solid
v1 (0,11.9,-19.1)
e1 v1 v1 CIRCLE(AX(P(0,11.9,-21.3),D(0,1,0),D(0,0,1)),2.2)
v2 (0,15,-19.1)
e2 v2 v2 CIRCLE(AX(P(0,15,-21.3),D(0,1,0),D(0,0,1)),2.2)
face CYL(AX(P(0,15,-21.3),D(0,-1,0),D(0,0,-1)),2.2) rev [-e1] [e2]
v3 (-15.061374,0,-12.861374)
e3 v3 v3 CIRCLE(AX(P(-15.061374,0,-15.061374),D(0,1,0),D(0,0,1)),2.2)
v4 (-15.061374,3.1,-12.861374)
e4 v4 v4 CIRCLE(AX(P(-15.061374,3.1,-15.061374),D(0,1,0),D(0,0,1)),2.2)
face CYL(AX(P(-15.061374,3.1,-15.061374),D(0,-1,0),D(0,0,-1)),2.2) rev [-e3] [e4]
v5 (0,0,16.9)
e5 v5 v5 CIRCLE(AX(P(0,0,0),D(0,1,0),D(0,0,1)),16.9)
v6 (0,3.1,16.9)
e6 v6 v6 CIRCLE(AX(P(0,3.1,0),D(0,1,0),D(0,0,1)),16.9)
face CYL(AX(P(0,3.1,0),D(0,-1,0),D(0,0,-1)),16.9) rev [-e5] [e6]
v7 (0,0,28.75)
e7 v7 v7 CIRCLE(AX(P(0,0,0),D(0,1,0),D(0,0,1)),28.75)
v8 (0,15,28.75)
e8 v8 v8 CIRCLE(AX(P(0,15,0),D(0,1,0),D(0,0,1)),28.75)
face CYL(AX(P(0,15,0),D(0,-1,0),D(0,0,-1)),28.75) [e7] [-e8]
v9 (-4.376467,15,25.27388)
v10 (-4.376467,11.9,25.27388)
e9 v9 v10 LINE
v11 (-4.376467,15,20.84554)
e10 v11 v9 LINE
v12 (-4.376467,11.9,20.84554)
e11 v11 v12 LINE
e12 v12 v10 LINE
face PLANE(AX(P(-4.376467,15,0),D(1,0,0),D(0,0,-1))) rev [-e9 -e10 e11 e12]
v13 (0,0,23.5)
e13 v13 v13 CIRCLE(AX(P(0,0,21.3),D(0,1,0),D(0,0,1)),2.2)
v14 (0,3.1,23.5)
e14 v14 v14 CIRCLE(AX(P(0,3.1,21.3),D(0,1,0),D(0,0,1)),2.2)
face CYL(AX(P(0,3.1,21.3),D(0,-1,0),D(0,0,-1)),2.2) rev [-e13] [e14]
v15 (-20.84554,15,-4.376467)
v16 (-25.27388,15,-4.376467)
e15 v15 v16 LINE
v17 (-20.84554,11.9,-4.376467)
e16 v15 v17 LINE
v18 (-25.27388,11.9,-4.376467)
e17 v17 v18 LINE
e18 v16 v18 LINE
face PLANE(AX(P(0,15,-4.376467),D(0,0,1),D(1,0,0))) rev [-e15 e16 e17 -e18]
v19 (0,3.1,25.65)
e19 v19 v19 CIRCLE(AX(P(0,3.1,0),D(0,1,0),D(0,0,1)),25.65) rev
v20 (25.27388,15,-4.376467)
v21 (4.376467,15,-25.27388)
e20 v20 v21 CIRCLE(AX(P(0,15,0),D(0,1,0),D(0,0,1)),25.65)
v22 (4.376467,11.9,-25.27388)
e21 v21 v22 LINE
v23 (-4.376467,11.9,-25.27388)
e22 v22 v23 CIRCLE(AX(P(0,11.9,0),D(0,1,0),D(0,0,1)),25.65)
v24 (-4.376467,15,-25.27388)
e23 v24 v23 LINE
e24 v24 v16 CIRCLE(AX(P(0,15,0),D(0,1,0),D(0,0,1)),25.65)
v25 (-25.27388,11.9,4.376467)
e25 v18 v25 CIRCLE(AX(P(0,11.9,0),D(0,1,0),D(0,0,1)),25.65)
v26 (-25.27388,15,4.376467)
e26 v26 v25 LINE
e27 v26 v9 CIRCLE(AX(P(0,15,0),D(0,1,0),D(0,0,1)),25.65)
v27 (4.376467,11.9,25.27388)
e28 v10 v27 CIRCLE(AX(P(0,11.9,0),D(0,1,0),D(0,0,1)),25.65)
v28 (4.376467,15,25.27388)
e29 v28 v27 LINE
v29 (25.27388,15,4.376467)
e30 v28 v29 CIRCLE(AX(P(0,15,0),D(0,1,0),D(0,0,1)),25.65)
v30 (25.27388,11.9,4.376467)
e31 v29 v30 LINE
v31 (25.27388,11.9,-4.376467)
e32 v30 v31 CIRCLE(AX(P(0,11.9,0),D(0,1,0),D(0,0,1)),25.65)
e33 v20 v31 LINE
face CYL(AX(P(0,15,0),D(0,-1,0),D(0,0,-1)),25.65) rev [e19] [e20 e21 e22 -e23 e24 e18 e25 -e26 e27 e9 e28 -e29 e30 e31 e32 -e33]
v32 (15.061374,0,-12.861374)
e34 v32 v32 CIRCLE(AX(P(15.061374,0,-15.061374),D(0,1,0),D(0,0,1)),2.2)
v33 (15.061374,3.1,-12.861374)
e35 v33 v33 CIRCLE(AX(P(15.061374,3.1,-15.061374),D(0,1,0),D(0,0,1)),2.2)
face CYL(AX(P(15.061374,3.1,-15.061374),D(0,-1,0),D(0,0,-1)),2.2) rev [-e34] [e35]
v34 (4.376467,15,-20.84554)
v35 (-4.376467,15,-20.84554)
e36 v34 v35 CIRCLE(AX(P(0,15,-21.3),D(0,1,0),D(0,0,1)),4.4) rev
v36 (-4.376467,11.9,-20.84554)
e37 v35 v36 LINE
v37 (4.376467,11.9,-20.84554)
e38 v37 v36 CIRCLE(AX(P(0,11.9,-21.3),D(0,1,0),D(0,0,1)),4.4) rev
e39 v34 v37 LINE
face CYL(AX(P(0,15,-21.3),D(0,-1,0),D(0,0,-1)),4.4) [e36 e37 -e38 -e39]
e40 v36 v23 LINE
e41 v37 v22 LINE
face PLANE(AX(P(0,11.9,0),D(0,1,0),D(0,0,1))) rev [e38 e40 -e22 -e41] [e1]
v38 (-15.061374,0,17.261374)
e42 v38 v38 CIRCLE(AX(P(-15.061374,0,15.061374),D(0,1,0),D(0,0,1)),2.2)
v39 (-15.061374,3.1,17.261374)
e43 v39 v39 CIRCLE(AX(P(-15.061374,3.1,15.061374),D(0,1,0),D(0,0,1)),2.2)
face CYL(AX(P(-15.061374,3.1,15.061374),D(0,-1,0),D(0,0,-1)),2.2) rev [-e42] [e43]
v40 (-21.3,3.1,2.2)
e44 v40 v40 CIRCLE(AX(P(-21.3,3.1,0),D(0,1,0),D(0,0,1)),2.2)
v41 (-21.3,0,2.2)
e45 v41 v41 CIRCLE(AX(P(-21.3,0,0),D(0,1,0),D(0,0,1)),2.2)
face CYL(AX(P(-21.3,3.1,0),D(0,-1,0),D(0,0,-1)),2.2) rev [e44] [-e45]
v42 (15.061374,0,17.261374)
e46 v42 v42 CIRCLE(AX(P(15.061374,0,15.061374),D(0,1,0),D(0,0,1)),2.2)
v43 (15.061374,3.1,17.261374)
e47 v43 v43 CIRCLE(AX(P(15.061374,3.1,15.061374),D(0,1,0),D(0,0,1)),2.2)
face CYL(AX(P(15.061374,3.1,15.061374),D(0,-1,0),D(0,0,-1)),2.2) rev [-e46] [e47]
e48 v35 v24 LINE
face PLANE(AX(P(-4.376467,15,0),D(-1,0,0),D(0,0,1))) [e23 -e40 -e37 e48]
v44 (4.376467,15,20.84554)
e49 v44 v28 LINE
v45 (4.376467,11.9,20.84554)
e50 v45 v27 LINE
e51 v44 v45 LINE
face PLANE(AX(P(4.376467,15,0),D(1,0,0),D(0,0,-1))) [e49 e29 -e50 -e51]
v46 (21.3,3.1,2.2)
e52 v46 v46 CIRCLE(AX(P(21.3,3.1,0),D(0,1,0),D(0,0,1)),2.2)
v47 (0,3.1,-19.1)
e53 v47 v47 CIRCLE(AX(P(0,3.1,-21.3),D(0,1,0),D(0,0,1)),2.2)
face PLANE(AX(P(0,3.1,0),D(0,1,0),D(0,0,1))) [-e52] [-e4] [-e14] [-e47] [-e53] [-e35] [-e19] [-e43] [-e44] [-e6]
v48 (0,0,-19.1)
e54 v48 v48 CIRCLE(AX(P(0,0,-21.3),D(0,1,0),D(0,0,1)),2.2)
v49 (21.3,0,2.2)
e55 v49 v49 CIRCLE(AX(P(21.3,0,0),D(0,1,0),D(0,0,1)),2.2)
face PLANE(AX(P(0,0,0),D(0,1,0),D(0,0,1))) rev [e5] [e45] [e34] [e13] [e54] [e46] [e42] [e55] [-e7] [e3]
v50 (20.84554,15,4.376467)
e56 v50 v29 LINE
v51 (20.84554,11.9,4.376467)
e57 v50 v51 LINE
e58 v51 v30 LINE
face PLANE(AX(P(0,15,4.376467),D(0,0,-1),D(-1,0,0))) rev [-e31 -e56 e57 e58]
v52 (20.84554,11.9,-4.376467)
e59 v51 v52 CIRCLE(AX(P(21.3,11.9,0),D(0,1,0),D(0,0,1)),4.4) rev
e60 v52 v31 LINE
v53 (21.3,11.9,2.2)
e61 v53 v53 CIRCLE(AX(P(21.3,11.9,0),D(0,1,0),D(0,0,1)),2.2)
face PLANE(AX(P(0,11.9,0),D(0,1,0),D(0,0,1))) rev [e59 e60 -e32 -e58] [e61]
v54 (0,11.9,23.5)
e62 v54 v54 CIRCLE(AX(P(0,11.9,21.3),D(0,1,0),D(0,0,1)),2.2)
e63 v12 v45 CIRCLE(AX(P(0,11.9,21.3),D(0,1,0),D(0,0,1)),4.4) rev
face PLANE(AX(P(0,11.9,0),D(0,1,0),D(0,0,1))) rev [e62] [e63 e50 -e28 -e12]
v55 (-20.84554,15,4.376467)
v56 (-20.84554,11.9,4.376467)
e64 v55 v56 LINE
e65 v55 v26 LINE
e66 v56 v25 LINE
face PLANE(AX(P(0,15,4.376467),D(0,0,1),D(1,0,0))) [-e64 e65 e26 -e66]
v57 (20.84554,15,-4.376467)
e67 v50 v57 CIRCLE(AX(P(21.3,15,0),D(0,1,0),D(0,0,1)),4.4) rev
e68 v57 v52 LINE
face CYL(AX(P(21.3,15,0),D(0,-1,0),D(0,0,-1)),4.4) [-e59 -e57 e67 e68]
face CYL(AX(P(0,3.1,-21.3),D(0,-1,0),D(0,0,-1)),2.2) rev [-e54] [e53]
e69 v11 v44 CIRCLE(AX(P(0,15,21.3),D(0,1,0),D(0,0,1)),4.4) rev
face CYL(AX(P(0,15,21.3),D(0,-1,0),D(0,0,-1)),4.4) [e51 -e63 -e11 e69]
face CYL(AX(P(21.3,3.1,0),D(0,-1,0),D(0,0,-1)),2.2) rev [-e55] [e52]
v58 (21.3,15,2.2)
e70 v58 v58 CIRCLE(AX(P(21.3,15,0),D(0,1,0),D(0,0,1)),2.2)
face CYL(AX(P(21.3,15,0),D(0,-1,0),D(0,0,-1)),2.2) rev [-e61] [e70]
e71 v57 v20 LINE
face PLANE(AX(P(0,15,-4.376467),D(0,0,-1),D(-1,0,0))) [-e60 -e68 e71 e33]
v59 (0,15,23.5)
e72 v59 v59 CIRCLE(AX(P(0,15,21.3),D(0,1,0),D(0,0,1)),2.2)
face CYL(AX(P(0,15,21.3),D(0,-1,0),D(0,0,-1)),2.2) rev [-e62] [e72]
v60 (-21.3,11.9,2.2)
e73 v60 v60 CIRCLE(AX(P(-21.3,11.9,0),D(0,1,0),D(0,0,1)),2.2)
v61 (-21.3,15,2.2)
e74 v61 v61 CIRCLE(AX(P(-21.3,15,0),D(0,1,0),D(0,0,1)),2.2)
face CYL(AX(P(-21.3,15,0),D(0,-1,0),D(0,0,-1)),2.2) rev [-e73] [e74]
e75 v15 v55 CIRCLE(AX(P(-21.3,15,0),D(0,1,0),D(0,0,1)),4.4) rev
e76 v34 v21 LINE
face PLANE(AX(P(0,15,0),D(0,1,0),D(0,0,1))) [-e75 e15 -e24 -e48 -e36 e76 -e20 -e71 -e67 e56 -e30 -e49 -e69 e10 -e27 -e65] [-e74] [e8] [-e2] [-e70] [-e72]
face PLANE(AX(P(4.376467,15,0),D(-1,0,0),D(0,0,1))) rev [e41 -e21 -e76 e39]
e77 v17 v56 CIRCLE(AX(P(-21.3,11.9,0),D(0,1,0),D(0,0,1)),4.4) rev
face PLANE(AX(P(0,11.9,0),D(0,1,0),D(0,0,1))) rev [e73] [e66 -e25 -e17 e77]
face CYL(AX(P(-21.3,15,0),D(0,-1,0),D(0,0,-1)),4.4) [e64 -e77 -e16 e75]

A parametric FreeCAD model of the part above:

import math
import FreeCAD as App
import Part
import Sketcher
Q = App.Units.Quantity

doc = App.newDocument("Part")
params = doc.addObject("Spreadsheet::Sheet", "Params")
for row, (alias, value) in enumerate([
    ("sketch1_diameter", "51.3 mm"),
    ("sketch1_diameter2", "4.4 mm"),
    ("sketch1_diameter3", "33.8 mm"),
    ("pad1_length", "3.1 mm"),
    ("sketch2_diameter", "57.5 mm"),
    ("sketch2_diameter2", "51.3 mm"),
    ("pad2_length", "15 mm"),
    ("sketch3_diameter", "4.4 mm"),
    ("sketch3_radius", "4.4 mm"),
    ("sketch3_radius2", "25.65 mm"),
    ("pad3_length", "3.1 mm"),
], start=1):
    params.set(f"A{row}", alias)
    params.set(f"B{row}", "=" + value)
    params.setAlias(f"B{row}", alias)

body = doc.addObject("PartDesign::Body", "Body")

# Sketch on XZ plane
sketch1 = body.newObject("Sketcher::SketchObject", "Sketch")
sketch1.AttachmentSupport = (doc.getObject("XZ_Plane"), [""])
sketch1.MapMode = "FlatFace"
sketch1.addGeometry([
    Part.Circle(App.Vector(0, 0, 0), App.Vector(0, 0, 1), 25.6),  # 0
    Part.Circle(App.Vector(-15.1, 15.1, 0), App.Vector(0, 0, 1), 2.2),  # 1
    Part.Circle(App.Vector(0, 21.3, 0), App.Vector(0, 0, 1), 2.2),  # 2
    Part.Circle(App.Vector(15.1, 15.1, 0), App.Vector(0, 0, 1), 2.2),  # 3
    Part.Circle(App.Vector(-21.3, 0, 0), App.Vector(0, 0, 1), 2.2),  # 4
    Part.Circle(App.Vector(-15.1, -15.1, 0), App.Vector(0, 0, 1), 2.2),  # 5
    Part.Circle(App.Vector(0, 0, 0), App.Vector(0, 0, 1), 16.9),  # 6
    Part.Circle(App.Vector(21.3, 0, 0), App.Vector(0, 0, 1), 2.2),  # 7
    Part.Circle(App.Vector(0, -21.3, 0), App.Vector(0, 0, 1), 2.2),  # 8
    Part.Circle(App.Vector(15.1, -15.1, 0), App.Vector(0, 0, 1), 2.2),  # 9
], False)
sketch1.addConstraint([
    Sketcher.Constraint("Coincident", 0, 3, -1, 1),
    Sketcher.Constraint("Coincident", 6, 3, -1, 1),
    Sketcher.Constraint("Equal", 1, 2),
    Sketcher.Constraint("Equal", 2, 3),
    Sketcher.Constraint("Equal", 3, 4),
    Sketcher.Constraint("Equal", 4, 5),
    Sketcher.Constraint("Equal", 5, 7),
    Sketcher.Constraint("Equal", 7, 8),
    Sketcher.Constraint("Equal", 8, 9),
    Sketcher.Constraint("Symmetric", 3, 3, 5, 3, -1, 1),
    Sketcher.Constraint("Symmetric", 4, 3, 7, 3, -1, 1),
    Sketcher.Constraint("Symmetric", 2, 3, 8, 3, -1, 1),
    Sketcher.Constraint("Symmetric", 1, 3, 9, 3, -1, 1),
    Sketcher.Constraint("Symmetric", 1, 3, 3, 3, -2),
    Sketcher.Constraint("PointOnObject", 2, 3, -2),
    Sketcher.Constraint("PointOnObject", 4, 3, -1),
    Sketcher.Constraint("Diameter", 0, Q("51.3 mm")),
    Sketcher.Constraint("Diameter", 1, Q("4.4 mm")),
    Sketcher.Constraint("Diameter", 6, Q("33.8 mm")),
    Sketcher.Constraint("DistanceY", -1, 1, 2, 3, Q("21.3 mm")),
    Sketcher.Constraint("DistanceX", 4, 3, -1, 1, Q("21.3 mm")),
    Sketcher.Constraint("DistanceX", 1, 3, 3, 3, Q("30.122749 mm")),
    Sketcher.Constraint("DistanceY", 5, 3, 1, 3, Q("30.122749 mm")),
])
sketch1.setExpression("Constraints[16]", "Params.sketch1_diameter")
sketch1.setExpression("Constraints[17]", "Params.sketch1_diameter2")
sketch1.setExpression("Constraints[18]", "Params.sketch1_diameter3")
pad1 = body.newObject("PartDesign::Pad", "Pad")
pad1.Profile = sketch1
pad1.setExpression("Length", "Params.pad1_length")
pad1.Reversed = True

# Sketch on XZ plane
sketch2 = body.newObject("Sketcher::SketchObject", "Sketch001")
sketch2.AttachmentSupport = (doc.getObject("XZ_Plane"), [""])
sketch2.MapMode = "FlatFace"
sketch2.addGeometry([
    Part.Circle(App.Vector(0, 0, 0), App.Vector(0, 0, 1), 29),
    Part.Circle(App.Vector(0, 0, 0), App.Vector(0, 0, 1), 26),
], False)
sketch2.addConstraint([
    Sketcher.Constraint("Coincident", 0, 3, -1, 1),
    Sketcher.Constraint("Coincident", 1, 3, -1, 1),
    Sketcher.Constraint("Diameter", 0, Q("57.5 mm")),
    Sketcher.Constraint("Diameter", 1, Q("51.3 mm")),
])
sketch2.setExpression("Constraints[2]", "Params.sketch2_diameter")
sketch2.setExpression("Constraints[3]", "Params.sketch2_diameter2")
pad2 = body.newObject("PartDesign::Pad", "Pad001")
pad2.Profile = sketch2
pad2.setExpression("Length", "Params.pad2_length")
pad2.Reversed = True

# Sketch on XZ plane
sketch3 = body.newObject("Sketcher::SketchObject", "Sketch002")
sketch3.AttachmentSupport = (doc.getObject("XZ_Plane"), [""])
sketch3.MapMode = "FlatFace"
sketch3.AttachmentOffset = App.Placement(App.Vector(0, 0, -11.9), App.Rotation())
sketch3.addGeometry([
    Part.ArcOfCircle(Part.Circle(App.Vector(0, 0, 0), App.Vector(0, 0, 1), 25.7), math.radians(-9.82), math.radians(0)),  # 0
    Part.LineSegment(App.Vector(25.3, -4.4, 0), App.Vector(20.8, -4.4, 0)),  # 1
    Part.ArcOfCircle(Part.Circle(App.Vector(21.3, 0, 0), App.Vector(0, 0, 1), 4.4), math.radians(96), math.radians(264)),  # 2
    Part.LineSegment(App.Vector(20.8, 4.4, 0), App.Vector(25.3, 4.4, 0)),  # 3
    Part.ArcOfCircle(Part.Circle(App.Vector(0, 0, 0), App.Vector(0, 0, 1), 25.7), math.radians(0), math.radians(9.82)),  # 4
    Part.Circle(App.Vector(21.3, 0, 0), App.Vector(0, 0, 1), 2.2),  # 5
    Part.ArcOfCircle(Part.Circle(App.Vector(0, 0, 0), App.Vector(0, 0, 1), 25.6), math.radians(-99.82), math.radians(-80.18)),  # 6
    Part.LineSegment(App.Vector(-4.4, -25.3, 0), App.Vector(-4.4, -20.8, 0)),  # 7
    Part.ArcOfCircle(Part.Circle(App.Vector(0, -21.3, 0), App.Vector(0, 0, 1), 4.4), math.radians(6), math.radians(174)),  # 8
    Part.LineSegment(App.Vector(4.4, -20.8, 0), App.Vector(4.4, -25.3, 0)),  # 9
    Part.Circle(App.Vector(0, -21.3, 0), App.Vector(0, 0, 1), 2.2),  # 10
    Part.LineSegment(App.Vector(-4.4, 20.8, 0), App.Vector(-4.4, 25.3, 0)),  # 11
    Part.ArcOfCircle(Part.Circle(App.Vector(0, 0, 0), App.Vector(0, 0, 1), 25.6), math.radians(80.18), math.radians(99.82)),  # 12
    Part.LineSegment(App.Vector(4.4, 25.3, 0), App.Vector(4.4, 20.8, 0)),  # 13
    Part.ArcOfCircle(Part.Circle(App.Vector(0, 21.3, 0), App.Vector(0, 0, 1), 4.4), math.radians(-174), math.radians(-6)),  # 14
    Part.Circle(App.Vector(0, 21.3, 0), App.Vector(0, 0, 1), 2.2),  # 15
    Part.ArcOfCircle(Part.Circle(App.Vector(-21.3, 0, 0), App.Vector(0, 0, 1), 4.4), math.radians(-84), math.radians(84)),  # 16
    Part.LineSegment(App.Vector(-20.8, -4.4, 0), App.Vector(-25.3, -4.4, 0)),  # 17
    Part.ArcOfCircle(Part.Circle(App.Vector(0, 0, 0), App.Vector(0, 0, 1), 25.6), math.radians(170.18), math.radians(189.82)),  # 18
    Part.LineSegment(App.Vector(-25.3, 4.4, 0), App.Vector(-20.8, 4.4, 0)),  # 19
    Part.Circle(App.Vector(-21.3, 0, 0), App.Vector(0, 0, 1), 2.2),  # 20
], False)
sketch3.addConstraint([
    Sketcher.Constraint("Coincident", 0, 1, 1, 1),
    Sketcher.Constraint("Coincident", 1, 2, 2, 2),
    Sketcher.Constraint("Coincident", 2, 1, 3, 1),
    Sketcher.Constraint("Coincident", 3, 2, 4, 2),
    Sketcher.Constraint("Tangent", 4, 1, 0, 2),
    Sketcher.Constraint("Coincident", 6, 1, 7, 1),
    Sketcher.Constraint("Coincident", 7, 2, 8, 2),
    Sketcher.Constraint("Coincident", 8, 1, 9, 1),
    Sketcher.Constraint("Coincident", 9, 2, 6, 2),
    Sketcher.Constraint("Coincident", 11, 2, 12, 2),
    Sketcher.Constraint("Coincident", 12, 1, 13, 1),
    Sketcher.Constraint("Coincident", 13, 2, 14, 2),
    Sketcher.Constraint("Coincident", 14, 1, 11, 1),
    Sketcher.Constraint("Coincident", 16, 1, 17, 1),
    Sketcher.Constraint("Coincident", 17, 2, 18, 2),
    Sketcher.Constraint("Coincident", 18, 1, 19, 1),
    Sketcher.Constraint("Coincident", 19, 2, 16, 2),
    Sketcher.Constraint("Horizontal", 1),
    Sketcher.Constraint("Horizontal", 3),
    Sketcher.Constraint("Vertical", 7),
    Sketcher.Constraint("Vertical", 9),
    Sketcher.Constraint("Vertical", 11),
    Sketcher.Constraint("Vertical", 13),
    Sketcher.Constraint("Horizontal", 17),
    Sketcher.Constraint("Horizontal", 19),
    Sketcher.Constraint("Coincident", 0, 3, -1, 1),
    Sketcher.Constraint("Coincident", 6, 3, -1, 1),
    Sketcher.Constraint("Coincident", 12, 3, -1, 1),
    Sketcher.Constraint("Coincident", 18, 3, -1, 1),
    Sketcher.Constraint("Coincident", 5, 3, 2, 3),
    Sketcher.Constraint("Coincident", 10, 3, 8, 3),
    Sketcher.Constraint("Coincident", 15, 3, 14, 3),
    Sketcher.Constraint("Coincident", 20, 3, 16, 3),
    Sketcher.Constraint("Equal", 0, 4),
    Sketcher.Constraint("Equal", 4, 6),
    Sketcher.Constraint("Equal", 2, 8),
    Sketcher.Constraint("Equal", 5, 10),
    Sketcher.Constraint("Equal", 6, 12),
    Sketcher.Constraint("Equal", 8, 14),
    Sketcher.Constraint("Equal", 10, 15),
    Sketcher.Constraint("Equal", 14, 16),
    Sketcher.Constraint("Equal", 12, 18),
    Sketcher.Constraint("Equal", 15, 20),
    Sketcher.Constraint("Symmetric", 8, 3, 14, 3, -1, 1),
    Sketcher.Constraint("Symmetric", 2, 3, 16, 3, -1, 1),
    Sketcher.Constraint("Symmetric", 7, 2, 8, 1, -2),
    Sketcher.Constraint("Symmetric", 1, 2, 16, 1, -2),
    Sketcher.Constraint("PointOnObject", 4, 1, -1),
    Sketcher.Constraint("Horizontal", 11, 2, 12, 1),
    Sketcher.Constraint("Horizontal", 3, 2, 18, 1),
    Sketcher.Constraint("Vertical", 1, 2, 2, 1),
    Sketcher.Constraint("Vertical", 7, 2, 11, 2),
    Sketcher.Constraint("Equal", 19, 7),
    Sketcher.Constraint("Diameter", 5, Q("4.4 mm")),
    Sketcher.Constraint("Radius", 2, Q("4.4 mm")),
    Sketcher.Constraint("Radius", 0, Q("25.65 mm")),
    Sketcher.Constraint("DistanceX", -1, 1, 2, 3, Q("21.3 mm")),
    Sketcher.Constraint("DistanceY", 8, 3, -1, 1, Q("21.3 mm")),
    Sketcher.Constraint("DistanceX", 1, 2, 1, 1, Q("4.428341 mm")),
])
sketch3.setExpression("Constraints[53]", "Params.sketch3_diameter")
sketch3.setExpression("Constraints[54]", "Params.sketch3_radius")
sketch3.setExpression("Constraints[55]", "Params.sketch3_radius2")
pad3 = body.newObject("PartDesign::Pad", "Pad002")
pad3.Profile = sketch3
pad3.setExpression("Length", "Params.pad3_length")
pad3.Reversed = True

doc.recompute()
